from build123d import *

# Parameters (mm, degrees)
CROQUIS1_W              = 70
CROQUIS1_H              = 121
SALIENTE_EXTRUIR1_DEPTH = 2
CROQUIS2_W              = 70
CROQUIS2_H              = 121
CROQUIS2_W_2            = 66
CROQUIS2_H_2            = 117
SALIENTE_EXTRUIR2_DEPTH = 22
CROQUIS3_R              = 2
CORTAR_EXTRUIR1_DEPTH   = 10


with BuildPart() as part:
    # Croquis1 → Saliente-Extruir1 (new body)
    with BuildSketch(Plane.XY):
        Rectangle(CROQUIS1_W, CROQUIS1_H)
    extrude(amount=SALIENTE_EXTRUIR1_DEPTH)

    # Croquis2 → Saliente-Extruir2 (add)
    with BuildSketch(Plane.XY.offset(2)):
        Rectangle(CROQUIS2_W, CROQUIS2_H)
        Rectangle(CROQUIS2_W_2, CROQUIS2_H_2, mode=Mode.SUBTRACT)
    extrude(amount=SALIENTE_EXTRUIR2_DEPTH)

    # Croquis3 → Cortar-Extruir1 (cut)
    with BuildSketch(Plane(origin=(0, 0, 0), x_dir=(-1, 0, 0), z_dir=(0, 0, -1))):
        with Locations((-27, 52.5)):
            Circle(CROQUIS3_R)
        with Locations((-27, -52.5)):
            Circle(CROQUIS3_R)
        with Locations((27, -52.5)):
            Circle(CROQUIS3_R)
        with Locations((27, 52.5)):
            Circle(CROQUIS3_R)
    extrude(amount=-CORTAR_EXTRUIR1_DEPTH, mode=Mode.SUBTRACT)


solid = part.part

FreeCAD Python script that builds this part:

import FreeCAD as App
import Part
import Sketcher


def add_polygon(sketch, points):
    """Adds a closed chain of lines whose ends are joined by coincident constraints."""
    first, n = sketch.GeometryCount, len(points)
    for a, b in zip(points, points[1:] + points[:1]):
        sketch.addGeometry(Part.LineSegment(App.Vector(*a, 0), App.Vector(*b, 0)), False)
    for i in range(n):
        sketch.addConstraint(Sketcher.Constraint("Coincident", first + i, 2, first + (i + 1) % n, 1))

doc = App.newDocument("Part")
body = doc.addObject("PartDesign::Body", "Body")

sketch1 = doc.addObject("Sketcher::SketchObject", "Sketch")
body.addObject(sketch1)
sketch1.AttachmentSupport = (doc.XY_Plane, [""])
sketch1.MapMode = "FlatFace"
add_polygon(sketch1, [(-35, 60.5), (-35, -60.5), (35, -60.5), (35, 60.5)])
sketch1.addConstraint([
    Sketcher.Constraint("Vertical", 0),
    Sketcher.Constraint("Horizontal", 1),
    Sketcher.Constraint("Vertical", 2),
    Sketcher.Constraint("Horizontal", 3),
    Sketcher.Constraint("Symmetric", 0, 2, 2, 2, -1, 1),
    Sketcher.Constraint("DistanceX", 1, 1, 1, 2, 70.0),
    Sketcher.Constraint("DistanceY", 0, 2, 0, 1, 121.0),
])
pad1 = doc.addObject("PartDesign::Pad", "Pad")
body.addObject(pad1)
pad1.Profile = sketch1
pad1.Length = 2

sketch2 = doc.addObject("Sketcher::SketchObject", "Sketch001")
body.addObject(sketch2)
sketch2.AttachmentSupport = (doc.XY_Plane, [""])
sketch2.MapMode = "FlatFace"
sketch2.AttachmentOffset = App.Placement(App.Vector(0, 0, 2), App.Rotation())
add_polygon(sketch2, [(-35, 60.5), (-35, -60.5), (35, -60.5), (35, 60.5)])
add_polygon(sketch2, [(33, -58.5), (-33, -58.5), (-33, 58.5), (33, 58.5)])
sketch2.addConstraint([
    Sketcher.Constraint("Vertical", 0),
    Sketcher.Constraint("Horizontal", 1),
    Sketcher.Constraint("Vertical", 2),
    Sketcher.Constraint("Horizontal", 3),
    Sketcher.Constraint("Horizontal", 4),
    Sketcher.Constraint("Vertical", 5),
    Sketcher.Constraint("Horizontal", 6),
    Sketcher.Constraint("Vertical", 7),
    Sketcher.Constraint("Symmetric", 0, 2, 2, 2, -1, 1),
    Sketcher.Constraint("Symmetric", 4, 2, 6, 2, -1, 1),
    Sketcher.Constraint("DistanceX", 1, 1, 1, 2, 70.0),
    Sketcher.Constraint("DistanceX", 4, 2, 4, 1, 66.0),
    Sketcher.Constraint("DistanceY", 0, 2, 0, 1, 121.0),
    Sketcher.Constraint("DistanceY", 5, 1, 5, 2, 117.0),
])
pad2 = doc.addObject("PartDesign::Pad", "Pad001")
body.addObject(pad2)
pad2.Profile = sketch2
pad2.Length = 22

sketch3 = doc.addObject("Sketcher::SketchObject", "Sketch002")
body.addObject(sketch3)
sketch3.AttachmentSupport = (doc.XY_Plane, [""])
sketch3.MapMode = "FlatFace"
sketch3.addGeometry([
    Part.Circle(App.Vector(27, 52.5, 0), App.Vector(0, 0, 1), 2),
    Part.Circle(App.Vector(27, -52.5, 0), App.Vector(0, 0, 1), 2),
    Part.Circle(App.Vector(-27, -52.5, 0), App.Vector(0, 0, 1), 2),
    Part.Circle(App.Vector(-27, 52.5, 0), App.Vector(0, 0, 1), 2),
], False)
sketch3.addConstraint([
    Sketcher.Constraint("Equal", 0, 1),
    Sketcher.Constraint("Equal", 1, 2),
    Sketcher.Constraint("Equal", 2, 3),
    Sketcher.Constraint("Symmetric", 0, 3, 2, 3, -1, 1),
    Sketcher.Constraint("Symmetric", 1, 3, 3, 3, -1, 1),
    Sketcher.Constraint("Symmetric", 1, 3, 2, 3, -2),
    Sketcher.Constraint("Diameter", 0, 4.0),
    Sketcher.Constraint("DistanceX", -1, 1, 0, 3, 27.0),
    Sketcher.Constraint("DistanceY", 1, 3, 0, 3, 105.0),
])
pocket1 = doc.addObject("PartDesign::Pocket", "Pocket")
body.addObject(pocket1)
pocket1.Profile = sketch3
pocket1.Length = 10
pocket1.Reversed = True

doc.recompute()
